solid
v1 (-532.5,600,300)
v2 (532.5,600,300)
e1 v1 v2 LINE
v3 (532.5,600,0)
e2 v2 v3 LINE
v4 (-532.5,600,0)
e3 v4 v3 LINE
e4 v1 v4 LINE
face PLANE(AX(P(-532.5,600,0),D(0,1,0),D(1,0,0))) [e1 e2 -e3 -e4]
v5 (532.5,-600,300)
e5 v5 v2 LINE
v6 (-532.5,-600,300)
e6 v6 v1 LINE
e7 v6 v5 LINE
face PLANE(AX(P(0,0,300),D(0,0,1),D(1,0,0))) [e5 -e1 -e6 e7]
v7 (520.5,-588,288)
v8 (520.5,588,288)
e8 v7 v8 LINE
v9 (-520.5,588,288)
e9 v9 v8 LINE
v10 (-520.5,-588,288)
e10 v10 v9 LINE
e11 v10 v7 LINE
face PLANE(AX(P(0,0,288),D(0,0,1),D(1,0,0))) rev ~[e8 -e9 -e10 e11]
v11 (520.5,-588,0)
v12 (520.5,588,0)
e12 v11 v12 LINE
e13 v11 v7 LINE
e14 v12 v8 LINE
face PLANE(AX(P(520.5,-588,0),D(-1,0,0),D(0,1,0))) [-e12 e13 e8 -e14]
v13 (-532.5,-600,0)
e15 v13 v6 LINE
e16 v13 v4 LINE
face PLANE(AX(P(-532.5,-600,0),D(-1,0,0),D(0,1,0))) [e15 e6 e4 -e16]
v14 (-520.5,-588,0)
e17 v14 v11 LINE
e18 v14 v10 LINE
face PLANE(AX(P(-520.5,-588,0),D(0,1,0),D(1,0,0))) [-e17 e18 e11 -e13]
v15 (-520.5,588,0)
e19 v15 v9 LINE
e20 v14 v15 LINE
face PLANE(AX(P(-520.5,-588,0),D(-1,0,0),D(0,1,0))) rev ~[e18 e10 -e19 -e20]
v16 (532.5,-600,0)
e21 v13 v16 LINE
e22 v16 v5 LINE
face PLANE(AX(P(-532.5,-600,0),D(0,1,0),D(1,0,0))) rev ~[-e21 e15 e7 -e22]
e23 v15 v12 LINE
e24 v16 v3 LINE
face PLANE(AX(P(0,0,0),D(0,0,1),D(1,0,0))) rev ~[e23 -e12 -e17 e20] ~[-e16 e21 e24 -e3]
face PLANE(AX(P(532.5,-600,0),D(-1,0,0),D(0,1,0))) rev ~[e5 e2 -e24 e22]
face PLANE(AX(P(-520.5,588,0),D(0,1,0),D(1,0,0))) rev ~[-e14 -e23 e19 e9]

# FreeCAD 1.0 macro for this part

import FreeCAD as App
import Part
import Sketcher
from FreeCAD import Vector


def add_polygon(sketch, points):
    """Adds a closed chain of lines whose ends are joined by coincident constraints."""
    first, n = sketch.GeometryCount, len(points)
    for a, b in zip(points, points[1:] + points[:1]):
        sketch.addGeometry(Part.LineSegment(App.Vector(*a, 0), App.Vector(*b, 0)), False)
    for i in range(n):
        sketch.addConstraint(Sketcher.Constraint("Coincident", first + i, 2, first + (i + 1) % n, 1))

doc = App.newDocument("Part")
params = doc.addObject("Spreadsheet::Sheet", "Params")
for row, (alias, value) in enumerate([
    ("sketch1_width", "1065 mm"),
    ("sketch1_width2", "1041 mm"),
    ("sketch1_height", "1200 mm"),
    ("sketch1_height2", "1176 mm"),
    ("pad1_length", "300 mm"),
    ("sketch2_width", "1065 mm"),
    ("sketch2_height", "1200 mm"),
    ("pad2_length", "12 mm"),
], start=1):
    params.set(f"A{row}", alias)
    params.set(f"B{row}", "=" + value)
    params.setAlias(f"B{row}", alias)

body = doc.addObject("PartDesign::Body", "Body")

sketch1 = body.newObject("Sketcher::SketchObject", "Sketch")
sketch1.AttachmentSupport = (doc.getObject("XY_Plane"), [""])
sketch1.MapMode = "FlatFace"
add_polygon(sketch1, [(-532, 600), (-532, -600), (532, -600), (532, 600)])
add_polygon(sketch1, [(520, -588), (-520, -588), (-520, 588), (520, 588)])
sketch1.addConstraint([
    Sketcher.Constraint("Vertical", 0),
    Sketcher.Constraint("Horizontal", 1),
    Sketcher.Constraint("Vertical", 2),
    Sketcher.Constraint("Horizontal", 3),
    Sketcher.Constraint("Horizontal", 4),
    Sketcher.Constraint("Vertical", 5),
    Sketcher.Constraint("Horizontal", 6),
    Sketcher.Constraint("Vertical", 7),
    Sketcher.Constraint("Symmetric", 0, 2, 2, 2, -1, 1),
    Sketcher.Constraint("Symmetric", 4, 2, 6, 2, -1, 1),
    Sketcher.Constraint("DistanceX", 1, 1, 1, 2, 1065.0),
    Sketcher.Constraint("DistanceX", 4, 2, 4, 1, 1041.0),
    Sketcher.Constraint("DistanceY", 0, 2, 0, 1, 1200.0),
    Sketcher.Constraint("DistanceY", 5, 1, 5, 2, 1176.0),
])
sketch1.setExpression("Constraints[18]", "Params.sketch1_width")
sketch1.setExpression("Constraints[19]", "Params.sketch1_width2")
sketch1.setExpression("Constraints[20]", "Params.sketch1_height")
sketch1.setExpression("Constraints[21]", "Params.sketch1_height2")
pad1 = body.newObject("PartDesign::Pad", "Pad")
pad1.Profile = sketch1
pad1.setExpression("Length", "Params.pad1_length")

sketch2 = body.newObject("Sketcher::SketchObject", "Sketch001")
sketch2.AttachmentSupport = (doc.getObject("XY_Plane"), [""])
sketch2.MapMode = "FlatFace"
sketch2.AttachmentOffset = App.Placement(Vector(0, 0, 300), App.Rotation())
add_polygon(sketch2, [(-532, 600), (-532, -600), (532, -600), (532, 600)])
sketch2.addConstraint([
    Sketcher.Constraint("Vertical", 0),
    Sketcher.Constraint("Horizontal", 1),
    Sketcher.Constraint("Vertical", 2),
    Sketcher.Constraint("Horizontal", 3),
    Sketcher.Constraint("Symmetric", 0, 2, 2, 2, -1, 1),
    Sketcher.Constraint("DistanceX", 1, 1, 1, 2, 1065.0),
    Sketcher.Constraint("DistanceY", 0, 2, 0, 1, 1200.0),
])
sketch2.setExpression("Constraints[9]", "Params.sketch2_width")
sketch2.setExpression("Constraints[10]", "Params.sketch2_height")
pad2 = body.newObject("PartDesign::Pad", "Pad001")
pad2.Profile = sketch2
pad2.setExpression("Length", "Params.pad2_length")
pad2.Reversed = True

doc.recompute()
